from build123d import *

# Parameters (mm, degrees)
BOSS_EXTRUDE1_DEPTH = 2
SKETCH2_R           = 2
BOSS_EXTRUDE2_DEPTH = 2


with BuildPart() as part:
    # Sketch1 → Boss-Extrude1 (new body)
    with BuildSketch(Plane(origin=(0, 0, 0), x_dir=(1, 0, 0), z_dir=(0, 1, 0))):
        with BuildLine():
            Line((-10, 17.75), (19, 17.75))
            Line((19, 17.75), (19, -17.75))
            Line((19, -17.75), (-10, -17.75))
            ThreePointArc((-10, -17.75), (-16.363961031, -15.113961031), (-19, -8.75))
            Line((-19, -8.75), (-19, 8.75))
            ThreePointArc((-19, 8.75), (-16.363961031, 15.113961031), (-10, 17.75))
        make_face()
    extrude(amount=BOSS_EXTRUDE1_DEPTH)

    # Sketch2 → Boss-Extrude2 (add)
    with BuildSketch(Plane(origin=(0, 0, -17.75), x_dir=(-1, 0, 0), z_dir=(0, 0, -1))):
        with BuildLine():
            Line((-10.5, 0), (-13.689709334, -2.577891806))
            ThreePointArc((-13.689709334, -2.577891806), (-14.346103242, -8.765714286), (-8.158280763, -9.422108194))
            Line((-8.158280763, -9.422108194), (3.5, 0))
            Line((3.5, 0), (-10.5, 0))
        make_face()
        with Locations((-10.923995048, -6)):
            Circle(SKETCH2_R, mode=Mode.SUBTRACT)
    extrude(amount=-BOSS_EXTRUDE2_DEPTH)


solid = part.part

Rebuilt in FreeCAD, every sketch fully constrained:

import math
import FreeCAD as App
import Part
import Sketcher

V = App.Vector

doc = App.newDocument("Part")
params = doc.addObject("Spreadsheet::Sheet", "Params")
for row, (alias, value) in enumerate([
    ("sketch1_radius", "9 mm"),
    ("sketch1_width", "29 mm"),
    ("sketch1_height", "17.5 mm"),
    ("pad1_length", "2 mm"),
    ("sketch2_diameter", "4 mm"),
    ("sketch2_radius", "4.4 mm"),
    ("sketch2_width", "14 mm"),
    ("pad2_length", "2 mm"),
], start=1):
    params.set(f"A{row}", alias)
    params.set(f"B{row}", "=" + value)
    params.setAlias(f"B{row}", alias)

body = doc.addObject("PartDesign::Body", "Body")

# Sketch on XZ plane
sketch1 = body.newObject("Sketcher::SketchObject", "Sketch")
sketch1.AttachmentSupport = (doc.getObject("XZ_Plane"), [""])
sketch1.MapMode = "FlatFace"
sketch1.addGeometry([
    Part.LineSegment(V(19, -17.75, 0), V(-10, -17.75, 0)),  # 0
    Part.ArcOfCircle(Part.Circle(V(-10, -8.75, 0), V(0, 0, 1), 9), math.radians(180), math.radians(270)),  # 1
    Part.LineSegment(V(-19, -8.75, 0), V(-19, 8.75, 0)),  # 2
    Part.ArcOfCircle(Part.Circle(V(-10, 8.75, 0), V(0, 0, 1), 9), math.radians(90), math.radians(180)),  # 3
    Part.LineSegment(V(-10, 17.75, 0), V(19, 17.75, 0)),  # 4
    Part.LineSegment(V(19, 17.75, 0), V(19, -17.75, 0)),  # 5
], False)
sketch1.addConstraint([
    Sketcher.Constraint("Tangent", 0, 2, 1, 2),
    Sketcher.Constraint("Tangent", 1, 1, 2, 1),
    Sketcher.Constraint("Tangent", 2, 2, 3, 2),
    Sketcher.Constraint("Tangent", 3, 1, 4, 1),
    Sketcher.Constraint("Coincident", 4, 2, 5, 1),
    Sketcher.Constraint("Coincident", 5, 2, 0, 1),
    Sketcher.Constraint("Horizontal", 0),
    Sketcher.Constraint("Vertical", 2),
    Sketcher.Constraint("Horizontal", 4),
    Sketcher.Constraint("Vertical", 5),
    Sketcher.Constraint("Equal", 1, 3),
    Sketcher.Constraint("Radius", 1, 9.0),
    Sketcher.Constraint("DistanceX", 0, 2, 0, 1, 29.0),
    Sketcher.Constraint("DistanceY", 2, 1, 2, 2, 17.5),
    Sketcher.Constraint("DistanceX", 1, 3, -1, 1, 10.0),
    Sketcher.Constraint("DistanceY", 1, 3, -1, 1, 8.75),
])
sketch1.setExpression("Constraints[11]", "Params.sketch1_radius")
sketch1.setExpression("Constraints[12]", "Params.sketch1_width")
sketch1.setExpression("Constraints[13]", "Params.sketch1_height")
pad1 = body.newObject("PartDesign::Pad", "Pad")
pad1.Profile = sketch1
pad1.setExpression("Length", "Params.pad1_length")
pad1.Reversed = True

# Sketch on XY plane
sketch2 = body.newObject("Sketcher::SketchObject", "Sketch001")
sketch2.AttachmentSupport = (doc.getObject("XY_Plane"), [""])
sketch2.MapMode = "FlatFace"
sketch2.AttachmentOffset = App.Placement(V(0, 0, -17.75), App.Rotation())
sketch2.addGeometry([
    Part.LineSegment(V(10.5, 0, 0), V(13.689709, -2.577892, 0)),  # 0
    Part.ArcOfCircle(Part.Circle(V(10.923995, -6, 0), V(0, 0, 1), 4.4), math.radians(-128.944804), math.radians(51.055196)),  # 1
    Part.LineSegment(V(8.158281, -9.422108, 0), V(-3.5, 0, 0)),  # 2
    Part.LineSegment(V(-3.5, 0, 0), V(10.5, 0, 0)),  # 3
    Part.Circle(V(10.923995, -6, 0), V(0, 0, 1), 2),  # 4
], False)
sketch2.addConstraint([
    Sketcher.Constraint("Tangent", 0, 2, 1, 2),
    Sketcher.Constraint("Tangent", 1, 1, 2, 1),
    Sketcher.Constraint("Coincident", 2, 2, 3, 1),
    Sketcher.Constraint("Coincident", 3, 2, 0, 1),
    Sketcher.Constraint("Horizontal", 3),
    Sketcher.Constraint("Coincident", 4, 3, 1, 3),
    Sketcher.Constraint("PointOnObject", 2, 2, -1),
    Sketcher.Constraint("Parallel", 0, 2),
    Sketcher.Constraint("Diameter", 4, 4.0),
    Sketcher.Constraint("Radius", 1, 4.4),
    Sketcher.Constraint("DistanceX", 3, 1, 3, 2, 14.0),
    Sketcher.Constraint("DistanceY", 1, 3, -1, 1, 6.0),
    Sketcher.Constraint("DistanceX", 2, 2, -1, 1, 3.5),
])
sketch2.setExpression("Constraints[8]", "Params.sketch2_diameter")
sketch2.setExpression("Constraints[9]", "Params.sketch2_radius")
sketch2.setExpression("Constraints[10]", "Params.sketch2_width")
pad2 = body.newObject("PartDesign::Pad", "Pad001")
pad2.Profile = sketch2
pad2.setExpression("Length", "Params.pad2_length")

doc.recompute()
